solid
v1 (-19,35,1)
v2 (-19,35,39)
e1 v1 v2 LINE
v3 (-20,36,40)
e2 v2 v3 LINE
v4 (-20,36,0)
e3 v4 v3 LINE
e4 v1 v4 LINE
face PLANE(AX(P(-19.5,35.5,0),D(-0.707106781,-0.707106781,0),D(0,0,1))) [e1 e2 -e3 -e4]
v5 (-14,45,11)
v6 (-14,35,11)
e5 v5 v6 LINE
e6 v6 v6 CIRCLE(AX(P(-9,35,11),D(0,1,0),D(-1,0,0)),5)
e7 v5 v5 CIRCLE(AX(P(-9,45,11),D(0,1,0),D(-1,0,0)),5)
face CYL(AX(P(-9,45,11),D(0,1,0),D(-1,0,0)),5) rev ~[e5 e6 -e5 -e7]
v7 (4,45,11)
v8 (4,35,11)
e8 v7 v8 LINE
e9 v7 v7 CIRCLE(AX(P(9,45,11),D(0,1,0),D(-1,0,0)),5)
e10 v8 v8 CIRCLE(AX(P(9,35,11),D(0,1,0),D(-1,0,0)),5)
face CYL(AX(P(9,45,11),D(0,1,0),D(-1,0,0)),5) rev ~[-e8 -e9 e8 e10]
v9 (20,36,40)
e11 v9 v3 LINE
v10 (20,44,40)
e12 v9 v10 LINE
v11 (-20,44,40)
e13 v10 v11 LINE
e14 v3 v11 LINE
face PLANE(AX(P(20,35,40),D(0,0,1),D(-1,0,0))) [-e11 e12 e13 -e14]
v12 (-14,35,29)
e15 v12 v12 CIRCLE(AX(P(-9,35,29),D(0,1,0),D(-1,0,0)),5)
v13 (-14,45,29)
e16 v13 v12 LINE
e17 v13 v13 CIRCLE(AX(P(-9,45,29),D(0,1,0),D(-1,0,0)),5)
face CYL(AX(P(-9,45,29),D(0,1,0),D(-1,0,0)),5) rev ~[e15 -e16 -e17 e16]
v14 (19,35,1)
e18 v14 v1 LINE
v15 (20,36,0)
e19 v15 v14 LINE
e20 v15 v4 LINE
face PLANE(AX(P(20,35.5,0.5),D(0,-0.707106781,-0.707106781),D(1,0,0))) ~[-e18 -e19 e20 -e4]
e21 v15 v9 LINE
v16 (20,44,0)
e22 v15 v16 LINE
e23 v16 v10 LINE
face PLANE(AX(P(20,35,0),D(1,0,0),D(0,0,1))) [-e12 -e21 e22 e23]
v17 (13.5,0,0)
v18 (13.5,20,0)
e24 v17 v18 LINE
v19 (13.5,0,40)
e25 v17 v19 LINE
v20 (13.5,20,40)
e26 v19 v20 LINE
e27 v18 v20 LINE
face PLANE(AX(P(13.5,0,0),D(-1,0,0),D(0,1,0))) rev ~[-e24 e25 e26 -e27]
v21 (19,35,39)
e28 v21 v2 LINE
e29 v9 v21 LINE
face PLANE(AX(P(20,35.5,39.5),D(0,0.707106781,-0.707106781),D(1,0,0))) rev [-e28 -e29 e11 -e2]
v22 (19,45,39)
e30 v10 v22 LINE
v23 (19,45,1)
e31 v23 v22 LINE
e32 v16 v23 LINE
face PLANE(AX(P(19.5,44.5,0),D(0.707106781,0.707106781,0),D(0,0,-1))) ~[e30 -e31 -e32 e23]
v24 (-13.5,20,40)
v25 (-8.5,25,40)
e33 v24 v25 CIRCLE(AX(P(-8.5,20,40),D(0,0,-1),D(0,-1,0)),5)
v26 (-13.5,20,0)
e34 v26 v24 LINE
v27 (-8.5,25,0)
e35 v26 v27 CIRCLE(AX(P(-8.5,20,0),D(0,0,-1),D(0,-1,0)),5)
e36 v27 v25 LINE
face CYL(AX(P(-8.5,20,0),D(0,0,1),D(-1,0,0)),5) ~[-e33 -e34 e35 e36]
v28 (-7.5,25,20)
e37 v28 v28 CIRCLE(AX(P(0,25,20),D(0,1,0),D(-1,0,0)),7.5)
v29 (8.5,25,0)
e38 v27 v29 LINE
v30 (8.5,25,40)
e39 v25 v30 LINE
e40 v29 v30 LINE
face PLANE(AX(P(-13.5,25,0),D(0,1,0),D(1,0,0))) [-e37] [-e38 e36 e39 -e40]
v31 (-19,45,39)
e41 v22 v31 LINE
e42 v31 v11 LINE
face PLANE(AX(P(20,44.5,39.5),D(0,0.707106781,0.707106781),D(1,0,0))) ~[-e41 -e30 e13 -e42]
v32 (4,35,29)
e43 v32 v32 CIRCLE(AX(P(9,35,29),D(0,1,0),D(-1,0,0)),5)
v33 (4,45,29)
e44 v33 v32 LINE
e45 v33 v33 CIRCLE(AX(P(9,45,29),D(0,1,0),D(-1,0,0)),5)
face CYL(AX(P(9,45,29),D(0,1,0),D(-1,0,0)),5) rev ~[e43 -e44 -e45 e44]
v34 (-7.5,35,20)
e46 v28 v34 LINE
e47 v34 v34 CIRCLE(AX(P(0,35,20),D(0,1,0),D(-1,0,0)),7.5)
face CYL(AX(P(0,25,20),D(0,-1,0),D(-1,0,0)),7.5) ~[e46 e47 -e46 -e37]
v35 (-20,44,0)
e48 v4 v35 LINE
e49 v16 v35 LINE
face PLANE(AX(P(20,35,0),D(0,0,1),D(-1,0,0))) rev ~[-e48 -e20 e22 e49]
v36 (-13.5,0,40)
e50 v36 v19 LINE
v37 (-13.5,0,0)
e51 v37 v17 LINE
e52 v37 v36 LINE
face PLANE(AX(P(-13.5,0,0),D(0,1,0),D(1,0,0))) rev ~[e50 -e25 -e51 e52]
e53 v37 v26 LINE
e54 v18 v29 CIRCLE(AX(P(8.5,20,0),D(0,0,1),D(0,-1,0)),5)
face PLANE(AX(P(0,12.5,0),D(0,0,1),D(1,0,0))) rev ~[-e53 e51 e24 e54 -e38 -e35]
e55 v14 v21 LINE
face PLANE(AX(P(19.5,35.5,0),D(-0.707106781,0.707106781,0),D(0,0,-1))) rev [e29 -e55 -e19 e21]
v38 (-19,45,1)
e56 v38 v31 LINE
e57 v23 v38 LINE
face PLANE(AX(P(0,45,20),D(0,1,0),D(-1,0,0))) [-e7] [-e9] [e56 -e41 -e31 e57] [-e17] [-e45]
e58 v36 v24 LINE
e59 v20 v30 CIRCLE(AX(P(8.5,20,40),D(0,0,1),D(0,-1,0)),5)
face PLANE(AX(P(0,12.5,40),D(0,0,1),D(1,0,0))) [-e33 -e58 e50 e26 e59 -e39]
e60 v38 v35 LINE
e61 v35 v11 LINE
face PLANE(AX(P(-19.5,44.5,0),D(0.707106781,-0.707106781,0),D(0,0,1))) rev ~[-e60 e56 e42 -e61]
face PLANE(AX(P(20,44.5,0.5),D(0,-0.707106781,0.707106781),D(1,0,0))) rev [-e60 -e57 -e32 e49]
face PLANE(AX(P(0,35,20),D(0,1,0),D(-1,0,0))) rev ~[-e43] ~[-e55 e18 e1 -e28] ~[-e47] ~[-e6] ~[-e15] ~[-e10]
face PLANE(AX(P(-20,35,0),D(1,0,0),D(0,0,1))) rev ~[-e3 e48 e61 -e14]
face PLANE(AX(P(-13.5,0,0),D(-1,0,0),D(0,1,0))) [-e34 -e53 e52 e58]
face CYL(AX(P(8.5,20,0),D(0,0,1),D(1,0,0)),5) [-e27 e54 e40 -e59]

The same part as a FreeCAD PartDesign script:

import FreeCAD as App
import Part
import Sketcher
from FreeCAD import Vector
Q = App.Units.Quantity


def edges_at(feature, points):
    """Names of the edges that pass closest to the given points."""
    edges = feature.Shape.Edges
    near = lambda p: min(range(len(edges)), key=lambda i: edges[i].distToShape(Part.Vertex(*p))[0])
    return sorted({f"Edge{near(p) + 1}" for p in points})


def add_polygon(sketch, points):
    """Adds a closed chain of lines whose ends are joined by coincident constraints."""
    first, n = sketch.GeometryCount, len(points)
    for a, b in zip(points, points[1:] + points[:1]):
        sketch.addGeometry(Part.LineSegment(App.Vector(*a, 0), App.Vector(*b, 0)), False)
    for i in range(n):
        sketch.addConstraint(Sketcher.Constraint("Coincident", first + i, 2, first + (i + 1) % n, 1))

doc = App.newDocument("Part")
body = doc.addObject("PartDesign::Body", "Body")

sketch1 = body.newObject("Sketcher::SketchObject", "Sketch")
sketch1.AttachmentSupport = (doc.getObject("XY_Plane"), [""])
sketch1.MapMode = "FlatFace"
add_polygon(sketch1, [(-14, 25), (-14, 0), (14, 0), (14, 25)])
sketch1.addConstraint(Sketcher.Constraint("Vertical", 0))
sketch1.addConstraint(Sketcher.Constraint("Horizontal", 1))
sketch1.addConstraint(Sketcher.Constraint("Vertical", 2))
sketch1.addConstraint(Sketcher.Constraint("Horizontal", 3))
sketch1.addConstraint(Sketcher.Constraint("Symmetric", 0, 2, 1, 2, -1, 1))
sketch1.addConstraint(Sketcher.Constraint("DistanceX", 1, 1, 1, 2, Q("27 mm")))
sketch1.addConstraint(Sketcher.Constraint("DistanceY", 0, 2, 0, 1, Q("25 mm")))
pad1 = body.newObject("PartDesign::Pad", "Pad")
pad1.Profile = sketch1
pad1.Length = 40
doc.recompute()

fillet = body.newObject("PartDesign::Fillet", "Fillet")
fillet.Base = (pad1, edges_at(pad1, [(13.5, 25, 20), (-13.5, 25, 20)]))
fillet.Radius = 5

sketch2 = body.newObject("Sketcher::SketchObject", "Sketch001")
sketch2.AttachmentSupport = (doc.getObject("XZ_Plane"), [""])
sketch2.MapMode = "FlatFace"
sketch2.AttachmentOffset = App.Placement(Vector(0, 0, -25), App.Rotation())
sketch2.addGeometry(Part.Circle(Vector(0, 20, 0), Vector(0, 0, 1), 8), False)
sketch2.addConstraint(Sketcher.Constraint("PointOnObject", 0, 3, -2))
sketch2.addConstraint(Sketcher.Constraint("Diameter", 0, Q("15 mm")))
sketch2.addConstraint(Sketcher.Constraint("DistanceY", -1, 1, 0, 3, Q("20 mm")))
pad2 = body.newObject("PartDesign::Pad", "Pad001")
pad2.Profile = sketch2
pad2.Length = 10
pad2.Reversed = True

sketch3 = body.newObject("Sketcher::SketchObject", "Sketch002")
sketch3.AttachmentSupport = (doc.getObject("XZ_Plane"), [""])
sketch3.MapMode = "FlatFace"
sketch3.AttachmentOffset = App.Placement(Vector(0, 0, -35), App.Rotation())
add_polygon(sketch3, [(20, 40), (20, 0), (-20, 0), (-20, 40)])
sketch3.addConstraint(Sketcher.Constraint("Vertical", 0))
sketch3.addConstraint(Sketcher.Constraint("Horizontal", 1))
sketch3.addConstraint(Sketcher.Constraint("Vertical", 2))
sketch3.addConstraint(Sketcher.Constraint("Horizontal", 3))
sketch3.addConstraint(Sketcher.Constraint("Symmetric", 0, 2, 1, 2, -1, 1))
sketch3.addConstraint(Sketcher.Constraint("Equal", 3, 0))
sketch3.addConstraint(Sketcher.Constraint("DistanceX", 1, 2, 1, 1, Q("40 mm")))
pad3 = body.newObject("PartDesign::Pad", "Pad002")
pad3.Profile = sketch3
pad3.Length = 10
pad3.Reversed = True
doc.recompute()

chamfer = body.newObject("PartDesign::Chamfer", "Chamfer")
chamfer.Base = (pad3, edges_at(pad3, [
    (-20, 45, 20),
    (0, 45, 40),
    (20, 45, 20),
    (0, 45, 0),
    (-20, 35, 20),
    (0, 35, 40),
    (0, 35, 0),
    (20, 35, 20),
]))
chamfer.Size = 1

sketch4 = body.newObject("Sketcher::SketchObject", "Sketch003")
sketch4.AttachmentSupport = (doc.getObject("XZ_Plane"), [""])
sketch4.MapMode = "FlatFace"
sketch4.AttachmentOffset = App.Placement(Vector(0, 0, -45), App.Rotation())
sketch4.addGeometry(Part.Circle(Vector(9, 29, 0), Vector(0, 0, 1), 5), False)
sketch4.addGeometry(Part.Circle(Vector(-9, 29, 0), Vector(0, 0, 1), 5), False)
sketch4.addGeometry(Part.Circle(Vector(9, 11, 0), Vector(0, 0, 1), 5), False)
sketch4.addGeometry(Part.Circle(Vector(-9, 11, 0), Vector(0, 0, 1), 5), False)
sketch4.addConstraint(Sketcher.Constraint("Equal", 0, 1))
sketch4.addConstraint(Sketcher.Constraint("Equal", 1, 2))
sketch4.addConstraint(Sketcher.Constraint("Equal", 2, 3))
sketch4.addConstraint(Sketcher.Constraint("Symmetric", 0, 3, 1, 3, -2))
sketch4.addConstraint(Sketcher.Constraint("Symmetric", 2, 3, 3, 3, -2))
sketch4.addConstraint(Sketcher.Constraint("Vertical", 0, 3, 2, 3))
sketch4.addConstraint(Sketcher.Constraint("Diameter", 0, Q("10 mm")))
sketch4.addConstraint(Sketcher.Constraint("DistanceX", -1, 1, 0, 3, Q("9 mm")))
sketch4.addConstraint(Sketcher.Constraint("DistanceY", -1, 1, 0, 3, Q("29 mm")))
sketch4.addConstraint(Sketcher.Constraint("DistanceY", -1, 1, 2, 3, Q("11 mm")))
pocket1 = body.newObject("PartDesign::Pocket", "Pocket")
pocket1.Profile = sketch4
pocket1.Length = 10
pocket1.Reversed = True

doc.recompute()
